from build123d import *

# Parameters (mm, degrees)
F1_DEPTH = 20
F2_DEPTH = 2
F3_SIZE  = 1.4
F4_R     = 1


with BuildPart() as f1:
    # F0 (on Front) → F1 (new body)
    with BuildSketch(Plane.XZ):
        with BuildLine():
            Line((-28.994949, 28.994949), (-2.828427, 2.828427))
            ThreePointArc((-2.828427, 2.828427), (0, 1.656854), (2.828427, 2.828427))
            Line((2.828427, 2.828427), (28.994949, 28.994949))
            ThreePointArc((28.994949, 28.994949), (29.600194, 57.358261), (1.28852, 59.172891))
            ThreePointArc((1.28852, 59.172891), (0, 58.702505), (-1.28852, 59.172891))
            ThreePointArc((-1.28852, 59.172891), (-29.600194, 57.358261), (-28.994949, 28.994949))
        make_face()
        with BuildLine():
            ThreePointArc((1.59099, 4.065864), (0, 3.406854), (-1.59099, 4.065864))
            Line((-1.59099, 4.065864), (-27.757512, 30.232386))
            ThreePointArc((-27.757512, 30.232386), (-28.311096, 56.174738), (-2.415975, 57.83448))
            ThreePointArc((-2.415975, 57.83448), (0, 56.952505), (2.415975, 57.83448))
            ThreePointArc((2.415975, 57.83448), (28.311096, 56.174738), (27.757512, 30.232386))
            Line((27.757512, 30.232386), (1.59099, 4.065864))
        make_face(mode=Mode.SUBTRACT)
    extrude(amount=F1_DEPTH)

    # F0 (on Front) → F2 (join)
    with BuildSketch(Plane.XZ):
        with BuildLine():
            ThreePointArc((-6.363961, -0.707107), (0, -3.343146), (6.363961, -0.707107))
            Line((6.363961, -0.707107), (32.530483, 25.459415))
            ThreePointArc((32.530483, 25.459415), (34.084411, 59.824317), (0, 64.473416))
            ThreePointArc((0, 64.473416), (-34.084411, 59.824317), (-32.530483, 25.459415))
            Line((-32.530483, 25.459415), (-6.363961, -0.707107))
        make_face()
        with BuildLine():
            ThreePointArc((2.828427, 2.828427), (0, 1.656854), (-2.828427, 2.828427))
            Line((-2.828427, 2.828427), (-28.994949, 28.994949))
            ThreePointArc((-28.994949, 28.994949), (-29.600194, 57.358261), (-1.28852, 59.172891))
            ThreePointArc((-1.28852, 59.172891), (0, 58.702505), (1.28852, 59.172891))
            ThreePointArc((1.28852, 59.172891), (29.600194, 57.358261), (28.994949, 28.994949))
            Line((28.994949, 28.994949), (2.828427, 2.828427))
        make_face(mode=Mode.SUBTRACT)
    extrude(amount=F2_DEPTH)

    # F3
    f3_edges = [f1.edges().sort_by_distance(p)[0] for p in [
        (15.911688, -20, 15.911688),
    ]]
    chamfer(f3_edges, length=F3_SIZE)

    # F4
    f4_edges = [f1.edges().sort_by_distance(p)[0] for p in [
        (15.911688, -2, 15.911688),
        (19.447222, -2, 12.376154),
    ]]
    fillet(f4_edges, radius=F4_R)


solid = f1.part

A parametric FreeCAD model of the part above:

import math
import FreeCAD as App
import Part
import Sketcher
from FreeCAD import Vector


def edges_at(feature, points):
    """Names of the edges that pass closest to the given points."""
    edges = feature.Shape.Edges
    near = lambda p: min(range(len(edges)), key=lambda i: edges[i].distToShape(Part.Vertex(*p))[0])
    return sorted({f"Edge{near(p) + 1}" for p in points})

doc = App.newDocument("Part")
params = doc.addObject("Spreadsheet::Sheet", "Params")
for row, (alias, value) in enumerate([
    ("sketch1_radius", "3.999999 mm"),
    ("sketch1_radius2", "2.249999 mm"),
    ("sketch1_radius3", "3.750001 mm"),
    ("pad1_length", "20 mm"),
    ("sketch2_radius", "9 mm"),
    ("sketch2_radius2", "3.999999 mm"),
    ("pad2_length", "2 mm"),
    ("chamfer_size", "1.4 mm"),
    ("fillet_radius", "1 mm"),
], start=1):
    params.set(f"A{row}", alias)
    params.set(f"B{row}", "=" + value)
    params.setAlias(f"B{row}", alias)

body = doc.addObject("PartDesign::Body", "Body")

# Sketch on XZ plane
sketch1 = doc.addObject("Sketcher::SketchObject", "Sketch")
body.addObject(sketch1)
sketch1.AttachmentSupport = (doc.XZ_Plane, [""])
sketch1.MapMode = "FlatFace"
sketch1.addGeometry(Part.LineSegment(Vector(-29, 29, 0), Vector(-2.8, 2.8, 0)), False)
sketch1.addGeometry(Part.ArcOfCircle(Part.Circle(Vector(0, 5.7, 0), Vector(0, 0, 1), 4), math.radians(-135), math.radians(-45)), False)
sketch1.addGeometry(Part.LineSegment(Vector(2.8, 2.8, 0), Vector(29, 29, 0)), False)
sketch1.addGeometry(Part.ArcOfCircle(Part.Circle(Vector(14.5, 43.5, 0), Vector(0, 0, 1), 20.5), math.radians(-45), math.radians(130)), False)
sketch1.addGeometry(Part.ArcOfCircle(Part.Circle(Vector(0, 60.7, 0), Vector(0, 0, 1), 2), math.radians(-130), math.radians(-50)), False)
sketch1.addGeometry(Part.ArcOfCircle(Part.Circle(Vector(-14.5, 43.5, 0), Vector(0, 0, 1), 20.5), math.radians(50), math.radians(225)), False)
sketch1.addGeometry(Part.LineSegment(Vector(27.8, 30.2, 0), Vector(1.6, 4.1, 0)), False)
sketch1.addGeometry(Part.ArcOfCircle(Part.Circle(Vector(0, 5.7, 0), Vector(0, 0, 1), 2.2), math.radians(-135), math.radians(-45)), False)
sketch1.addGeometry(Part.LineSegment(Vector(-1.6, 4.1, 0), Vector(-27.8, 30.2, 0)), False)
sketch1.addGeometry(Part.ArcOfCircle(Part.Circle(Vector(-14.5, 43.5, 0), Vector(0, 0, 1), 18.8), math.radians(50), math.radians(225)), False)
sketch1.addGeometry(Part.ArcOfCircle(Part.Circle(Vector(0, 60.7, 0), Vector(0, 0, 1), 3.8), math.radians(-130), math.radians(-50)), False)
sketch1.addGeometry(Part.ArcOfCircle(Part.Circle(Vector(14.5, 43.5, 0), Vector(0, 0, 1), 18.8), math.radians(-45), math.radians(130)), False)
sketch1.addConstraint(Sketcher.Constraint("Tangent", 0, 2, 1, 1))
sketch1.addConstraint(Sketcher.Constraint("Tangent", 1, 2, 2, 1))
sketch1.addConstraint(Sketcher.Constraint("Tangent", 2, 2, 3, 1))
sketch1.addConstraint(Sketcher.Constraint("Tangent", 3, 2, 4, 2))
sketch1.addConstraint(Sketcher.Constraint("Tangent", 4, 1, 5, 1))
sketch1.addConstraint(Sketcher.Constraint("Tangent", 5, 2, 0, 1))
sketch1.addConstraint(Sketcher.Constraint("Tangent", 6, 2, 7, 2))
sketch1.addConstraint(Sketcher.Constraint("Tangent", 7, 1, 8, 1))
sketch1.addConstraint(Sketcher.Constraint("Tangent", 8, 2, 9, 2))
sketch1.addConstraint(Sketcher.Constraint("Tangent", 9, 1, 10, 1))
sketch1.addConstraint(Sketcher.Constraint("Tangent", 10, 2, 11, 2))
sketch1.addConstraint(Sketcher.Constraint("Tangent", 11, 1, 6, 1))
sketch1.addConstraint(Sketcher.Constraint("Coincident", 7, 3, 1, 3))
sketch1.addConstraint(Sketcher.Constraint("Coincident", 9, 3, 5, 3))
sketch1.addConstraint(Sketcher.Constraint("Coincident", 10, 3, 4, 3))
sketch1.addConstraint(Sketcher.Constraint("Coincident", 11, 3, 3, 3))
sketch1.addConstraint(Sketcher.Constraint("Equal", 3, 5))
sketch1.addConstraint(Sketcher.Constraint("Symmetric", 3, 3, 5, 3, -2))
sketch1.addConstraint(Sketcher.Constraint("PointOnObject", 1, 3, -2))
sketch1.addConstraint(Sketcher.Constraint("Perpendicular", 0, 2))
sketch1.addConstraint(Sketcher.Constraint("Parallel", 2, 6))
sketch1.addConstraint(Sketcher.Constraint("Radius", 1, 3.999999))
sketch1.addConstraint(Sketcher.Constraint("Radius", 7, 2.249999))
sketch1.addConstraint(Sketcher.Constraint("Radius", 10, 3.750001))
sketch1.addConstraint(Sketcher.Constraint("Radius", 3, 20.502525))
sketch1.addConstraint(Sketcher.Constraint("DistanceX", 9, 3, 9, 1, 12.0815))
sketch1.addConstraint(Sketcher.Constraint("DistanceY", -1, 1, 2, 2, 28.994949))
sketch1.setExpression("Constraints[21]", "Params.sketch1_radius")
sketch1.setExpression("Constraints[22]", "Params.sketch1_radius2")
sketch1.setExpression("Constraints[23]", "Params.sketch1_radius3")
pad1 = doc.addObject("PartDesign::Pad", "Pad")
body.addObject(pad1)
pad1.Profile = sketch1
pad1.setExpression("Length", "Params.pad1_length")

# Sketch on XZ plane
sketch2 = doc.addObject("Sketcher::SketchObject", "Sketch001")
body.addObject(sketch2)
sketch2.AttachmentSupport = (doc.XZ_Plane, [""])
sketch2.MapMode = "FlatFace"
sketch2.addGeometry(Part.ArcOfCircle(Part.Circle(Vector(0, 5.7, 0), Vector(0, 0, 1), 9), math.radians(-135), math.radians(-45)), False)
sketch2.addGeometry(Part.LineSegment(Vector(6.4, -0.7, 0), Vector(32.5, 25.5, 0)), False)
sketch2.addGeometry(Part.ArcOfCircle(Part.Circle(Vector(14.5, 43.5, 0), Vector(0, 0, 1), 25.5), math.radians(-45), math.radians(125)), False)
sketch2.addGeometry(Part.ArcOfCircle(Part.Circle(Vector(-14.5, 43.5, 0), Vector(0, 0, 1), 25.5), math.radians(55), math.radians(225)), False)
sketch2.addGeometry(Part.LineSegment(Vector(-32.5, 25.5, 0), Vector(-6.4, -0.7, 0)), False)
sketch2.addGeometry(Part.LineSegment(Vector(29, 29, 0), Vector(2.8, 2.8, 0)), False)
sketch2.addGeometry(Part.ArcOfCircle(Part.Circle(Vector(0, 5.7, 0), Vector(0, 0, 1), 4), math.radians(-135), math.radians(-45)), False)
sketch2.addGeometry(Part.LineSegment(Vector(-2.8, 2.8, 0), Vector(-29, 29, 0)), False)
sketch2.addGeometry(Part.ArcOfCircle(Part.Circle(Vector(-14.5, 43.5, 0), Vector(0, 0, 1), 20.5), math.radians(50), math.radians(225)), False)
sketch2.addGeometry(Part.ArcOfCircle(Part.Circle(Vector(0, 60.7, 0), Vector(0, 0, 1), 2), math.radians(-130), math.radians(-50)), False)
sketch2.addGeometry(Part.ArcOfCircle(Part.Circle(Vector(14.5, 43.5, 0), Vector(0, 0, 1), 20.5), math.radians(-45), math.radians(130)), False)
sketch2.addConstraint(Sketcher.Constraint("Tangent", 0, 2, 1, 1))
sketch2.addConstraint(Sketcher.Constraint("Tangent", 1, 2, 2, 1))
sketch2.addConstraint(Sketcher.Constraint("Coincident", 2, 2, 3, 1))
sketch2.addConstraint(Sketcher.Constraint("Tangent", 3, 2, 4, 1))
sketch2.addConstraint(Sketcher.Constraint("Tangent", 4, 2, 0, 1))
sketch2.addConstraint(Sketcher.Constraint("Tangent", 5, 2, 6, 2))
sketch2.addConstraint(Sketcher.Constraint("Tangent", 6, 1, 7, 1))
sketch2.addConstraint(Sketcher.Constraint("Tangent", 7, 2, 8, 2))
sketch2.addConstraint(Sketcher.Constraint("Tangent", 8, 1, 9, 1))
sketch2.addConstraint(Sketcher.Constraint("Tangent", 9, 2, 10, 2))
sketch2.addConstraint(Sketcher.Constraint("Tangent", 10, 1, 5, 1))
sketch2.addConstraint(Sketcher.Constraint("Coincident", 6, 3, 0, 3))
sketch2.addConstraint(Sketcher.Constraint("Coincident", 8, 3, 3, 3))
sketch2.addConstraint(Sketcher.Constraint("Coincident", 10, 3, 2, 3))
sketch2.addConstraint(Sketcher.Constraint("Equal", 2, 3))
sketch2.addConstraint(Sketcher.Constraint("Equal", 8, 10))
sketch2.addConstraint(Sketcher.Constraint("Symmetric", 2, 3, 3, 3, -2))
sketch2.addConstraint(Sketcher.Constraint("PointOnObject", 0, 3, -2))
sketch2.addConstraint(Sketcher.Constraint("Perpendicular", 1, 4))
sketch2.addConstraint(Sketcher.Constraint("Perpendicular", 4, 5))
sketch2.addConstraint(Sketcher.Constraint("Radius", 0, 9.0))
sketch2.addConstraint(Sketcher.Constraint("Radius", 6, 3.999999))
sketch2.addConstraint(Sketcher.Constraint("Radius", 2, 25.502525))
sketch2.addConstraint(Sketcher.Constraint("Radius", 9, 2.000003))
sketch2.addConstraint(Sketcher.Constraint("Distance", 1, 37.00505))
sketch2.addConstraint(Sketcher.Constraint("DistanceY", -1, 1, 7, 2, 28.994949))
sketch2.setExpression("Constraints[20]", "Params.sketch2_radius")
sketch2.setExpression("Constraints[21]", "Params.sketch2_radius2")
pad2 = doc.addObject("PartDesign::Pad", "Pad001")
body.addObject(pad2)
pad2.Profile = sketch2
pad2.setExpression("Length", "Params.pad2_length")
doc.recompute()

chamfer = doc.addObject("PartDesign::Chamfer", "Chamfer")
body.addObject(chamfer)
chamfer.Base = (pad2, edges_at(pad2, [(15.912, -20, 15.912)]))
chamfer.setExpression("Size", "Params.chamfer_size")
doc.recompute()

fillet = doc.addObject("PartDesign::Fillet", "Fillet")
body.addObject(fillet)
fillet.Base = (chamfer, edges_at(chamfer, [(15.912, -2, 15.912), (19.447, -2, 12.376)]))
fillet.setExpression("Radius", "Params.fillet_radius")

doc.recompute()
